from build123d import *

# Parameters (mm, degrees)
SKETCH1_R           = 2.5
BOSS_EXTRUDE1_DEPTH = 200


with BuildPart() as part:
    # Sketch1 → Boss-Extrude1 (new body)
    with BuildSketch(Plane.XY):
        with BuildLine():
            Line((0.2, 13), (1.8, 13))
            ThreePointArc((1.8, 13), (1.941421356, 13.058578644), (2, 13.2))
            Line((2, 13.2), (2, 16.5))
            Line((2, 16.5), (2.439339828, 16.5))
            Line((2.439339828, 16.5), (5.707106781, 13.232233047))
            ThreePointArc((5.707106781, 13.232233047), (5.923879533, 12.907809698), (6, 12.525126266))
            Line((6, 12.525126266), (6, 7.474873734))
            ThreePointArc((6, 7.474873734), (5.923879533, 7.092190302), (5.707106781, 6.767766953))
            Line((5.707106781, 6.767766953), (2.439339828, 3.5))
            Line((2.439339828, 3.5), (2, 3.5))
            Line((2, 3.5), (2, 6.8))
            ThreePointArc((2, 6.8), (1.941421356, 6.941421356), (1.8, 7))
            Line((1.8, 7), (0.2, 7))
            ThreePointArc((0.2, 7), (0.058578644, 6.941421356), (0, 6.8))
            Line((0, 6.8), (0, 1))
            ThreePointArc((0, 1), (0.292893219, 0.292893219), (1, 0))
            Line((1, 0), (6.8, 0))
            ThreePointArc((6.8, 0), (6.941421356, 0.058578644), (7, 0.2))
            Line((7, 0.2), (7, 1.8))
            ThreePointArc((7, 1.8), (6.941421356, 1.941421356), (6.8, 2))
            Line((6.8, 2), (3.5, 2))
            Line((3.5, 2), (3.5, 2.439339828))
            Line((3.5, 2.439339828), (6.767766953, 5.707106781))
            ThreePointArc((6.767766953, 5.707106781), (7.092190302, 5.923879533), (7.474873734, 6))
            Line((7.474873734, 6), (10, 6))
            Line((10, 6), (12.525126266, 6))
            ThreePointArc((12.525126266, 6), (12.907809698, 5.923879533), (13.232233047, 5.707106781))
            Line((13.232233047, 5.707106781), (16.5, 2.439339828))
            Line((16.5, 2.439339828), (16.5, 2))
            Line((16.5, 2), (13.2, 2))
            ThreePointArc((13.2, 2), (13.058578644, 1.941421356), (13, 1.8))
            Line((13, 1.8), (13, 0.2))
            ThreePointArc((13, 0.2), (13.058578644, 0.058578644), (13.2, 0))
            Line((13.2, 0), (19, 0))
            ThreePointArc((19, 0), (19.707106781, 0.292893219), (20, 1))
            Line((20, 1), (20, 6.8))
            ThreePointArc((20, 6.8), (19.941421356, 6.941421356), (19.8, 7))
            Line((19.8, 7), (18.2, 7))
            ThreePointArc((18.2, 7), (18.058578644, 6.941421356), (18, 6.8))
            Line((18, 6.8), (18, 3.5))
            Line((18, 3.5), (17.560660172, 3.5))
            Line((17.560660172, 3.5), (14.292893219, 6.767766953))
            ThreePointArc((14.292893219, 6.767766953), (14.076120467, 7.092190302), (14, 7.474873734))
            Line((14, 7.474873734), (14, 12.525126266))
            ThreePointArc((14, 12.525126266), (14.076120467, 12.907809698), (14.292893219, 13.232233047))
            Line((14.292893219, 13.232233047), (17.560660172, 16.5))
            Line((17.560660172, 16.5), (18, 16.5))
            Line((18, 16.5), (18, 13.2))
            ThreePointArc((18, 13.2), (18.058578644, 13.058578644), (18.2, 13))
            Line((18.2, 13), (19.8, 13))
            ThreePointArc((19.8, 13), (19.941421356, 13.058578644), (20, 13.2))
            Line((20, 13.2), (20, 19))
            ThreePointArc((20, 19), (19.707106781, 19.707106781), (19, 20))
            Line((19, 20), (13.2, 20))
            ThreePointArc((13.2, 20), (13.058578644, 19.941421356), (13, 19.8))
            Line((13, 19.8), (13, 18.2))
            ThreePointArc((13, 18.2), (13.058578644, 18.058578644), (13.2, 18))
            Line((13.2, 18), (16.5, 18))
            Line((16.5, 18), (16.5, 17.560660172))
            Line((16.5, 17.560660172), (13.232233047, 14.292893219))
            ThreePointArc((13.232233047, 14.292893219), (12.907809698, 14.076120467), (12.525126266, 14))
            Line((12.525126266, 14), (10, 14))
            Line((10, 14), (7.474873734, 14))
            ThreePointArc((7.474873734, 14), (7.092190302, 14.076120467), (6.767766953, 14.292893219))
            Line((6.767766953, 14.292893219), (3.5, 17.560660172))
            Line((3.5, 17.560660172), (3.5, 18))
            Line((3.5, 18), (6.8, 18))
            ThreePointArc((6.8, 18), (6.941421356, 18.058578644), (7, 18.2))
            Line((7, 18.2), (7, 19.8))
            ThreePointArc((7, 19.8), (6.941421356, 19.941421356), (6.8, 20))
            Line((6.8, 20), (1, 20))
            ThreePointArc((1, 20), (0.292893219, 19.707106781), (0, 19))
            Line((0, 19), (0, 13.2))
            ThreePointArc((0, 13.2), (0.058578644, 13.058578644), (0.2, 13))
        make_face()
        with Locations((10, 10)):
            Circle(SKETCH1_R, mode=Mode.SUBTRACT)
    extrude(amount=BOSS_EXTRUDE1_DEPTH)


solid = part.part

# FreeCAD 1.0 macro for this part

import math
import FreeCAD as App
import Part
import Sketcher
Q = App.Units.Quantity

doc = App.newDocument("Part")
body = doc.addObject("PartDesign::Body", "Body")

# Sketch on XY plane
sketch1 = body.newObject("Sketcher::SketchObject", "Sketch")
sketch1.AttachmentSupport = (doc.getObject("XY_Plane"), [""])
sketch1.MapMode = "FlatFace"
sketch1.addGeometry([
    Part.LineSegment(App.Vector(0.2, 13, 0), App.Vector(1.8, 13, 0)),  # 0
    Part.ArcOfCircle(Part.Circle(App.Vector(1.8, 13.2, 0), App.Vector(0, 0, 1), 0.2), math.radians(-90), math.radians(0)),  # 1
    Part.LineSegment(App.Vector(2, 13.2, 0), App.Vector(2, 16.5, 0)),  # 2
    Part.LineSegment(App.Vector(2, 16.5, 0), App.Vector(2.43934, 16.5, 0)),  # 3
    Part.LineSegment(App.Vector(2.43934, 16.5, 0), App.Vector(5.707107, 13.232233, 0)),  # 4
    Part.ArcOfCircle(Part.Circle(App.Vector(5, 12.525126, 0), App.Vector(0, 0, 1), 1), math.radians(0), math.radians(45)),  # 5
    Part.LineSegment(App.Vector(6, 12.525126, 0), App.Vector(6, 7.474874, 0)),  # 6
    Part.ArcOfCircle(Part.Circle(App.Vector(5, 7.474874, 0), App.Vector(0, 0, 1), 1), math.radians(-45), math.radians(0)),  # 7
    Part.LineSegment(App.Vector(5.707107, 6.767767, 0), App.Vector(2.43934, 3.5, 0)),  # 8
    Part.LineSegment(App.Vector(2.43934, 3.5, 0), App.Vector(2, 3.5, 0)),  # 9
    Part.LineSegment(App.Vector(2, 3.5, 0), App.Vector(2, 6.8, 0)),  # 10
    Part.ArcOfCircle(Part.Circle(App.Vector(1.8, 6.8, 0), App.Vector(0, 0, 1), 0.2), math.radians(0), math.radians(90)),  # 11
    Part.LineSegment(App.Vector(1.8, 7, 0), App.Vector(0.2, 7, 0)),  # 12
    Part.ArcOfCircle(Part.Circle(App.Vector(0.2, 6.8, 0), App.Vector(0, 0, 1), 0.2), math.radians(90), math.radians(180)),  # 13
    Part.LineSegment(App.Vector(0, 6.8, 0), App.Vector(0, 1, 0)),  # 14
    Part.ArcOfCircle(Part.Circle(App.Vector(1, 1, 0), App.Vector(0, 0, 1), 1), math.radians(-180), math.radians(-90)),  # 15
    Part.LineSegment(App.Vector(1, 0, 0), App.Vector(6.8, 0, 0)),  # 16
    Part.ArcOfCircle(Part.Circle(App.Vector(6.8, 0.2, 0), App.Vector(0, 0, 1), 0.2), math.radians(-90), math.radians(0)),  # 17
    Part.LineSegment(App.Vector(7, 0.2, 0), App.Vector(7, 1.8, 0)),  # 18
    Part.ArcOfCircle(Part.Circle(App.Vector(6.8, 1.8, 0), App.Vector(0, 0, 1), 0.2), math.radians(0), math.radians(90)),  # 19
    Part.LineSegment(App.Vector(6.8, 2, 0), App.Vector(3.5, 2, 0)),  # 20
    Part.LineSegment(App.Vector(3.5, 2, 0), App.Vector(3.5, 2.43934, 0)),  # 21
    Part.LineSegment(App.Vector(3.5, 2.43934, 0), App.Vector(6.767767, 5.707107, 0)),  # 22
    Part.ArcOfCircle(Part.Circle(App.Vector(7.474874, 5, 0), App.Vector(0, 0, 1), 1), math.radians(90), math.radians(135)),  # 23
    Part.LineSegment(App.Vector(7.474874, 6, 0), App.Vector(12.525126, 6, 0)),  # 24
    Part.ArcOfCircle(Part.Circle(App.Vector(12.525126, 5, 0), App.Vector(0, 0, 1), 1), math.radians(45), math.radians(90)),  # 25
    Part.LineSegment(App.Vector(13.232233, 5.707107, 0), App.Vector(16.5, 2.43934, 0)),  # 26
    Part.LineSegment(App.Vector(16.5, 2.43934, 0), App.Vector(16.5, 2, 0)),  # 27
    Part.LineSegment(App.Vector(16.5, 2, 0), App.Vector(13.2, 2, 0)),  # 28
    Part.ArcOfCircle(Part.Circle(App.Vector(13.2, 1.8, 0), App.Vector(0, 0, 1), 0.2), math.radians(90), math.radians(180)),  # 29
    Part.LineSegment(App.Vector(13, 1.8, 0), App.Vector(13, 0.2, 0)),  # 30
    Part.ArcOfCircle(Part.Circle(App.Vector(13.2, 0.2, 0), App.Vector(0, 0, 1), 0.2), math.radians(-180), math.radians(-90)),  # 31
    Part.LineSegment(App.Vector(13.2, 0, 0), App.Vector(19, 0, 0)),  # 32
    Part.ArcOfCircle(Part.Circle(App.Vector(19, 1, 0), App.Vector(0, 0, 1), 1), math.radians(-90), math.radians(0)),  # 33
    Part.LineSegment(App.Vector(20, 1, 0), App.Vector(20, 6.8, 0)),  # 34
    Part.ArcOfCircle(Part.Circle(App.Vector(19.8, 6.8, 0), App.Vector(0, 0, 1), 0.2), math.radians(0), math.radians(90)),  # 35
    Part.LineSegment(App.Vector(19.8, 7, 0), App.Vector(18.2, 7, 0)),  # 36
    Part.ArcOfCircle(Part.Circle(App.Vector(18.2, 6.8, 0), App.Vector(0, 0, 1), 0.2), math.radians(90), math.radians(180)),  # 37
    Part.LineSegment(App.Vector(18, 6.8, 0), App.Vector(18, 3.5, 0)),  # 38
    Part.LineSegment(App.Vector(18, 3.5, 0), App.Vector(17.56066, 3.5, 0)),  # 39
    Part.LineSegment(App.Vector(17.56066, 3.5, 0), App.Vector(14.292893, 6.767767, 0)),  # 40
    Part.ArcOfCircle(Part.Circle(App.Vector(15, 7.474874, 0), App.Vector(0, 0, 1), 1), math.radians(180), math.radians(225)),  # 41
    Part.LineSegment(App.Vector(14, 7.474874, 0), App.Vector(14, 12.525126, 0)),  # 42
    Part.ArcOfCircle(Part.Circle(App.Vector(15, 12.525126, 0), App.Vector(0, 0, 1), 1), math.radians(135), math.radians(180)),  # 43
    Part.LineSegment(App.Vector(14.292893, 13.232233, 0), App.Vector(17.56066, 16.5, 0)),  # 44
    Part.LineSegment(App.Vector(17.56066, 16.5, 0), App.Vector(18, 16.5, 0)),  # 45
    Part.LineSegment(App.Vector(18, 16.5, 0), App.Vector(18, 13.2, 0)),  # 46
    Part.ArcOfCircle(Part.Circle(App.Vector(18.2, 13.2, 0), App.Vector(0, 0, 1), 0.2), math.radians(-180), math.radians(-90)),  # 47
    Part.LineSegment(App.Vector(18.2, 13, 0), App.Vector(19.8, 13, 0)),  # 48
    Part.ArcOfCircle(Part.Circle(App.Vector(19.8, 13.2, 0), App.Vector(0, 0, 1), 0.2), math.radians(-90), math.radians(0)),  # 49
    Part.LineSegment(App.Vector(20, 13.2, 0), App.Vector(20, 19, 0)),  # 50
    Part.ArcOfCircle(Part.Circle(App.Vector(19, 19, 0), App.Vector(0, 0, 1), 1), math.radians(0), math.radians(90)),  # 51
    Part.LineSegment(App.Vector(19, 20, 0), App.Vector(13.2, 20, 0)),  # 52
    Part.ArcOfCircle(Part.Circle(App.Vector(13.2, 19.8, 0), App.Vector(0, 0, 1), 0.2), math.radians(90), math.radians(180)),  # 53
    Part.LineSegment(App.Vector(13, 19.8, 0), App.Vector(13, 18.2, 0)),  # 54
    Part.ArcOfCircle(Part.Circle(App.Vector(13.2, 18.2, 0), App.Vector(0, 0, 1), 0.2), math.radians(-180), math.radians(-90)),  # 55
    Part.LineSegment(App.Vector(13.2, 18, 0), App.Vector(16.5, 18, 0)),  # 56
    Part.LineSegment(App.Vector(16.5, 18, 0), App.Vector(16.5, 17.56066, 0)),  # 57
    Part.LineSegment(App.Vector(16.5, 17.56066, 0), App.Vector(13.232233, 14.292893, 0)),  # 58
    Part.ArcOfCircle(Part.Circle(App.Vector(12.525126, 15, 0), App.Vector(0, 0, 1), 1), math.radians(-90), math.radians(-45)),  # 59
    Part.LineSegment(App.Vector(12.525126, 14, 0), App.Vector(7.474874, 14, 0)),  # 60
    Part.ArcOfCircle(Part.Circle(App.Vector(7.474874, 15, 0), App.Vector(0, 0, 1), 1), math.radians(-135), math.radians(-90)),  # 61
    Part.LineSegment(App.Vector(6.767767, 14.292893, 0), App.Vector(3.5, 17.56066, 0)),  # 62
    Part.LineSegment(App.Vector(3.5, 17.56066, 0), App.Vector(3.5, 18, 0)),  # 63
    Part.LineSegment(App.Vector(3.5, 18, 0), App.Vector(6.8, 18, 0)),  # 64
    Part.ArcOfCircle(Part.Circle(App.Vector(6.8, 18.2, 0), App.Vector(0, 0, 1), 0.2), math.radians(-90), math.radians(0)),  # 65
    Part.LineSegment(App.Vector(7, 18.2, 0), App.Vector(7, 19.8, 0)),  # 66
    Part.ArcOfCircle(Part.Circle(App.Vector(6.8, 19.8, 0), App.Vector(0, 0, 1), 0.2), math.radians(0), math.radians(90)),  # 67
    Part.LineSegment(App.Vector(6.8, 20, 0), App.Vector(1, 20, 0)),  # 68
    Part.ArcOfCircle(Part.Circle(App.Vector(1, 19, 0), App.Vector(0, 0, 1), 1), math.radians(90), math.radians(180)),  # 69
    Part.LineSegment(App.Vector(0, 19, 0), App.Vector(0, 13.2, 0)),  # 70
    Part.ArcOfCircle(Part.Circle(App.Vector(0.2, 13.2, 0), App.Vector(0, 0, 1), 0.2), math.radians(-180), math.radians(-90)),  # 71
    Part.Circle(App.Vector(10, 10, 0), App.Vector(0, 0, 1), 2.5),  # 72
], False)
sketch1.addConstraint([
    Sketcher.Constraint("Tangent", 0, 2, 1, 1),
    Sketcher.Constraint("Tangent", 1, 2, 2, 1),
    Sketcher.Constraint("Coincident", 2, 2, 3, 1),
    Sketcher.Constraint("Coincident", 3, 2, 4, 1),
    Sketcher.Constraint("Tangent", 4, 2, 5, 2),
    Sketcher.Constraint("Tangent", 5, 1, 6, 1),
    Sketcher.Constraint("Tangent", 6, 2, 7, 2),
    Sketcher.Constraint("Tangent", 7, 1, 8, 1),
    Sketcher.Constraint("Coincident", 8, 2, 9, 1),
    Sketcher.Constraint("Coincident", 9, 2, 10, 1),
    Sketcher.Constraint("Tangent", 10, 2, 11, 1),
    Sketcher.Constraint("Tangent", 11, 2, 12, 1),
    Sketcher.Constraint("Tangent", 12, 2, 13, 1),
    Sketcher.Constraint("Tangent", 13, 2, 14, 1),
    Sketcher.Constraint("Tangent", 14, 2, 15, 1),
    Sketcher.Constraint("Tangent", 15, 2, 16, 1),
    Sketcher.Constraint("Tangent", 16, 2, 17, 1),
    Sketcher.Constraint("Tangent", 17, 2, 18, 1),
    Sketcher.Constraint("Tangent", 18, 2, 19, 1),
    Sketcher.Constraint("Tangent", 19, 2, 20, 1),
    Sketcher.Constraint("Coincident", 20, 2, 21, 1),
    Sketcher.Constraint("Coincident", 21, 2, 22, 1),
    Sketcher.Constraint("Tangent", 22, 2, 23, 2),
    Sketcher.Constraint("Tangent", 23, 1, 24, 1),
    Sketcher.Constraint("Tangent", 24, 2, 25, 2),
    Sketcher.Constraint("Tangent", 25, 1, 26, 1),
    Sketcher.Constraint("Coincident", 26, 2, 27, 1),
    Sketcher.Constraint("Coincident", 27, 2, 28, 1),
    Sketcher.Constraint("Tangent", 28, 2, 29, 1),
    Sketcher.Constraint("Tangent", 29, 2, 30, 1),
    Sketcher.Constraint("Tangent", 30, 2, 31, 1),
    Sketcher.Constraint("Tangent", 31, 2, 32, 1),
    Sketcher.Constraint("Tangent", 32, 2, 33, 1),
    Sketcher.Constraint("Tangent", 33, 2, 34, 1),
    Sketcher.Constraint("Tangent", 34, 2, 35, 1),
    Sketcher.Constraint("Tangent", 35, 2, 36, 1),
    Sketcher.Constraint("Tangent", 36, 2, 37, 1),
    Sketcher.Constraint("Tangent", 37, 2, 38, 1),
    Sketcher.Constraint("Coincident", 38, 2, 39, 1),
    Sketcher.Constraint("Coincident", 39, 2, 40, 1),
    Sketcher.Constraint("Tangent", 40, 2, 41, 2),
    Sketcher.Constraint("Tangent", 41, 1, 42, 1),
    Sketcher.Constraint("Tangent", 42, 2, 43, 2),
    Sketcher.Constraint("Tangent", 43, 1, 44, 1),
    Sketcher.Constraint("Coincident", 44, 2, 45, 1),
    Sketcher.Constraint("Coincident", 45, 2, 46, 1),
    Sketcher.Constraint("Tangent", 46, 2, 47, 1),
    Sketcher.Constraint("Tangent", 47, 2, 48, 1),
    Sketcher.Constraint("Tangent", 48, 2, 49, 1),
    Sketcher.Constraint("Tangent", 49, 2, 50, 1),
    Sketcher.Constraint("Tangent", 50, 2, 51, 1),
    Sketcher.Constraint("Tangent", 51, 2, 52, 1),
    Sketcher.Constraint("Tangent", 52, 2, 53, 1),
    Sketcher.Constraint("Tangent", 53, 2, 54, 1),
    Sketcher.Constraint("Tangent", 54, 2, 55, 1),
    Sketcher.Constraint("Tangent", 55, 2, 56, 1),
    Sketcher.Constraint("Coincident", 56, 2, 57, 1),
    Sketcher.Constraint("Coincident", 57, 2, 58, 1),
    Sketcher.Constraint("Tangent", 58, 2, 59, 2),
    Sketcher.Constraint("Tangent", 59, 1, 60, 1),
    Sketcher.Constraint("Tangent", 60, 2, 61, 2),
    Sketcher.Constraint("Tangent", 61, 1, 62, 1),
    Sketcher.Constraint("Coincident", 62, 2, 63, 1),
    Sketcher.Constraint("Coincident", 63, 2, 64, 1),
    Sketcher.Constraint("Tangent", 64, 2, 65, 1),
    Sketcher.Constraint("Tangent", 65, 2, 66, 1),
    Sketcher.Constraint("Tangent", 66, 2, 67, 1),
    Sketcher.Constraint("Tangent", 67, 2, 68, 1),
    Sketcher.Constraint("Tangent", 68, 2, 69, 1),
    Sketcher.Constraint("Tangent", 69, 2, 70, 1),
    Sketcher.Constraint("Tangent", 70, 2, 71, 1),
    Sketcher.Constraint("Tangent", 71, 2, 0, 1),
    Sketcher.Constraint("Horizontal", 0),
    Sketcher.Constraint("Vertical", 2),
    Sketcher.Constraint("Horizontal", 3),
    Sketcher.Constraint("Vertical", 6),
    Sketcher.Constraint("Horizontal", 9),
    Sketcher.Constraint("Vertical", 10),
    Sketcher.Constraint("Horizontal", 12),
    Sketcher.Constraint("Vertical", 14),
    Sketcher.Constraint("Horizontal", 16),
    Sketcher.Constraint("Vertical", 18),
    Sketcher.Constraint("Horizontal", 20),
    Sketcher.Constraint("Vertical", 21),
    Sketcher.Constraint("Horizontal", 24),
    Sketcher.Constraint("Vertical", 27),
    Sketcher.Constraint("Horizontal", 28),
    Sketcher.Constraint("Vertical", 30),
    Sketcher.Constraint("Horizontal", 32),
    Sketcher.Constraint("Vertical", 34),
    Sketcher.Constraint("Horizontal", 36),
    Sketcher.Constraint("Vertical", 38),
    Sketcher.Constraint("Horizontal", 39),
    Sketcher.Constraint("Vertical", 42),
    Sketcher.Constraint("Horizontal", 45),
    Sketcher.Constraint("Vertical", 46),
    Sketcher.Constraint("Horizontal", 48),
    Sketcher.Constraint("Vertical", 50),
    Sketcher.Constraint("Horizontal", 52),
    Sketcher.Constraint("Vertical", 54),
    Sketcher.Constraint("Horizontal", 56),
    Sketcher.Constraint("Vertical", 57),
    Sketcher.Constraint("Horizontal", 60),
    Sketcher.Constraint("Vertical", 63),
    Sketcher.Constraint("Horizontal", 64),
    Sketcher.Constraint("Vertical", 66),
    Sketcher.Constraint("Horizontal", 68),
    Sketcher.Constraint("Vertical", 70),
    Sketcher.Constraint("Equal", 5, 7),
    Sketcher.Constraint("Equal", 1, 11),
    Sketcher.Constraint("Equal", 11, 13),
    Sketcher.Constraint("Equal", 7, 15),
    Sketcher.Constraint("Equal", 13, 17),
    Sketcher.Constraint("Equal", 17, 19),
    Sketcher.Constraint("Equal", 15, 23),
    Sketcher.Constraint("Equal", 23, 25),
    Sketcher.Constraint("Equal", 19, 29),
    Sketcher.Constraint("Equal", 29, 31),
    Sketcher.Constraint("Equal", 25, 33),
    Sketcher.Constraint("Equal", 31, 35),
    Sketcher.Constraint("Equal", 35, 37),
    Sketcher.Constraint("Equal", 33, 41),
    Sketcher.Constraint("Equal", 41, 43),
    Sketcher.Constraint("Equal", 37, 47),
    Sketcher.Constraint("Equal", 47, 49),
    Sketcher.Constraint("Equal", 43, 51),
    Sketcher.Constraint("Equal", 49, 53),
    Sketcher.Constraint("Equal", 53, 55),
    Sketcher.Constraint("Equal", 51, 59),
    Sketcher.Constraint("Equal", 59, 61),
    Sketcher.Constraint("Equal", 55, 65),
    Sketcher.Constraint("Equal", 65, 67),
    Sketcher.Constraint("Equal", 61, 69),
    Sketcher.Constraint("Equal", 67, 71),
    Sketcher.Constraint("PointOnObject", 13, 2, -2),
    Sketcher.Constraint("PointOnObject", 15, 2, -1),
    Sketcher.Constraint("PointOnObject", 31, 2, -1),
    Sketcher.Constraint("PointOnObject", 69, 2, -2),
    Sketcher.Constraint("Perpendicular", 4, 8),
    Sketcher.Constraint("Parallel", 8, 22),
    Sketcher.Constraint("Perpendicular", 22, 26),
    Sketcher.Constraint("Parallel", 26, 40),
    Sketcher.Constraint("Perpendicular", 40, 44),
    Sketcher.Constraint("Parallel", 44, 58),
    Sketcher.Constraint("Perpendicular", 58, 62),
    Sketcher.Constraint("Horizontal", 19, 3, 29, 3),
    Sketcher.Constraint("Horizontal", 13, 3, 35, 3),
    Sketcher.Constraint("Horizontal", 7, 3, 41, 3),
    Sketcher.Constraint("Horizontal", 5, 3, 43, 3),
    Sketcher.Constraint("Horizontal", 1, 3, 47, 3),
    Sketcher.Constraint("Horizontal", 55, 3, 65, 3),
    Sketcher.Constraint("Horizontal", 53, 3, 67, 3),
    Sketcher.Constraint("Horizontal", 22, 2, 25, 1),
    Sketcher.Constraint("Horizontal", 21, 2, 26, 2),
    Sketcher.Constraint("Horizontal", 9, 2, 38, 2),
    Sketcher.Constraint("Horizontal", 3, 2, 44, 2),
    Sketcher.Constraint("Horizontal", 57, 2, 62, 2),
    Sketcher.Constraint("Vertical", 1, 3, 11, 3),
    Sketcher.Constraint("Vertical", 37, 3, 47, 3),
    Sketcher.Constraint("Vertical", 35, 3, 49, 3),
    Sketcher.Constraint("Vertical", 31, 3, 53, 3),
    Sketcher.Constraint("Vertical", 25, 3, 59, 3),
    Sketcher.Constraint("Vertical", 23, 3, 61, 3),
    Sketcher.Constraint("Vertical", 19, 3, 65, 3),
    Sketcher.Constraint("Vertical", 3, 2, 8, 2),
    Sketcher.Constraint("Vertical", 27, 2, 56, 2),
    Sketcher.Constraint("Equal", 20, 28),
    Sketcher.Constraint("Equal", 16, 32),
    Sketcher.Constraint("Equal", 12, 36),
    Sketcher.Constraint("Equal", 9, 39),
    Sketcher.Constraint("Equal", 64, 2),
    Sketcher.Constraint("Equal", 60, 6),
    Sketcher.Constraint("Equal", 2, 10),
    Sketcher.Constraint("Equal", 68, 14),
    Sketcher.Constraint("Equal", 48, 18),
    Sketcher.Constraint("Equal", 45, 21),
    Sketcher.Constraint("Equal", 34, 50),
    Sketcher.Constraint("Equal", 30, 54),
    Sketcher.Constraint("Equal", 27, 57),
    Sketcher.Constraint("Equal", 8, 22),
    Sketcher.Constraint("Diameter", 72, Q("5 mm")),
    Sketcher.Constraint("Radius", 5, Q("1 mm")),
    Sketcher.Constraint("Radius", 1, Q("0.2 mm")),
    Sketcher.Constraint("DistanceX", 0, 1, 0, 2, Q("1.6 mm")),
    Sketcher.Constraint("DistanceX", 16, 1, 16, 2, Q("5.8 mm")),
    Sketcher.Constraint("DistanceX", 20, 2, 20, 1, Q("3.3 mm")),
    Sketcher.Constraint("DistanceX", -1, 1, 5, 3, Q("5 mm")),
    Sketcher.Constraint("DistanceX", -1, 1, 33, 3, Q("19 mm")),
    Sketcher.Constraint("DistanceX", -1, 1, 72, 3, Q("10 mm")),
    Sketcher.Constraint("DistanceY", -1, 1, 72, 3, Q("10 mm")),
    Sketcher.Constraint("DistanceX", 3, 1, 3, 2, Q("0.43934 mm")),
])
pad1 = body.newObject("PartDesign::Pad", "Pad")
pad1.Profile = sketch1
pad1.Length = 200

doc.recompute()
